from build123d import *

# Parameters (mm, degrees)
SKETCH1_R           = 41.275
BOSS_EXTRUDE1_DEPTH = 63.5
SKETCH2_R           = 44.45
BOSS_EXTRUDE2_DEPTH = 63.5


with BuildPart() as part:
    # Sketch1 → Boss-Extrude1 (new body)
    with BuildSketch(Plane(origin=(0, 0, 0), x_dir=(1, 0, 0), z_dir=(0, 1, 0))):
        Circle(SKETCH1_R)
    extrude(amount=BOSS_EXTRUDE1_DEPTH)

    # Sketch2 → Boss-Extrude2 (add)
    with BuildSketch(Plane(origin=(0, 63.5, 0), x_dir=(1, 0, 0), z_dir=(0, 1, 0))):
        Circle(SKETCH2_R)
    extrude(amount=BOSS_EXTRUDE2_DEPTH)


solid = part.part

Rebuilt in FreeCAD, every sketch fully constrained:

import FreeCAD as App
import Part
import Sketcher

V = App.Vector
Q = App.Units.Quantity

doc = App.newDocument("Part")
body = doc.addObject("PartDesign::Body", "Body")

# Sketch on XZ plane
sketch1 = body.newObject("Sketcher::SketchObject", "Sketch")
sketch1.AttachmentSupport = (doc.getObject("XZ_Plane"), [""])
sketch1.MapMode = "FlatFace"
sketch1.addGeometry(Part.Circle(V(0, 0, 0), V(0, 0, 1), 41.275), False)
sketch1.addConstraint([
    Sketcher.Constraint("Coincident", 0, 3, -1, 1),
    Sketcher.Constraint("Diameter", 0, Q("3.25 in")),
])
pad1 = body.newObject("PartDesign::Pad", "Pad")
pad1.Profile = sketch1
pad1.Length = Q("2.5 in")
pad1.Reversed = True

# Sketch on XZ plane
sketch2 = body.newObject("Sketcher::SketchObject", "Sketch001")
sketch2.AttachmentSupport = (doc.getObject("XZ_Plane"), [""])
sketch2.MapMode = "FlatFace"
sketch2.AttachmentOffset = App.Placement(V(0, 0, -2.5 * 25.4), App.Rotation())
sketch2.addGeometry(Part.Circle(V(0, 0, 0), V(0, 0, 1), 44.45), False)
sketch2.addConstraint([
    Sketcher.Constraint("Coincident", 0, 3, -1, 1),
    Sketcher.Constraint("Diameter", 0, Q("3.5 in")),
])
pad2 = body.newObject("PartDesign::Pad", "Pad001")
pad2.Profile = sketch2
pad2.Length = Q("2.5 in")
pad2.Reversed = True

doc.recompute()
